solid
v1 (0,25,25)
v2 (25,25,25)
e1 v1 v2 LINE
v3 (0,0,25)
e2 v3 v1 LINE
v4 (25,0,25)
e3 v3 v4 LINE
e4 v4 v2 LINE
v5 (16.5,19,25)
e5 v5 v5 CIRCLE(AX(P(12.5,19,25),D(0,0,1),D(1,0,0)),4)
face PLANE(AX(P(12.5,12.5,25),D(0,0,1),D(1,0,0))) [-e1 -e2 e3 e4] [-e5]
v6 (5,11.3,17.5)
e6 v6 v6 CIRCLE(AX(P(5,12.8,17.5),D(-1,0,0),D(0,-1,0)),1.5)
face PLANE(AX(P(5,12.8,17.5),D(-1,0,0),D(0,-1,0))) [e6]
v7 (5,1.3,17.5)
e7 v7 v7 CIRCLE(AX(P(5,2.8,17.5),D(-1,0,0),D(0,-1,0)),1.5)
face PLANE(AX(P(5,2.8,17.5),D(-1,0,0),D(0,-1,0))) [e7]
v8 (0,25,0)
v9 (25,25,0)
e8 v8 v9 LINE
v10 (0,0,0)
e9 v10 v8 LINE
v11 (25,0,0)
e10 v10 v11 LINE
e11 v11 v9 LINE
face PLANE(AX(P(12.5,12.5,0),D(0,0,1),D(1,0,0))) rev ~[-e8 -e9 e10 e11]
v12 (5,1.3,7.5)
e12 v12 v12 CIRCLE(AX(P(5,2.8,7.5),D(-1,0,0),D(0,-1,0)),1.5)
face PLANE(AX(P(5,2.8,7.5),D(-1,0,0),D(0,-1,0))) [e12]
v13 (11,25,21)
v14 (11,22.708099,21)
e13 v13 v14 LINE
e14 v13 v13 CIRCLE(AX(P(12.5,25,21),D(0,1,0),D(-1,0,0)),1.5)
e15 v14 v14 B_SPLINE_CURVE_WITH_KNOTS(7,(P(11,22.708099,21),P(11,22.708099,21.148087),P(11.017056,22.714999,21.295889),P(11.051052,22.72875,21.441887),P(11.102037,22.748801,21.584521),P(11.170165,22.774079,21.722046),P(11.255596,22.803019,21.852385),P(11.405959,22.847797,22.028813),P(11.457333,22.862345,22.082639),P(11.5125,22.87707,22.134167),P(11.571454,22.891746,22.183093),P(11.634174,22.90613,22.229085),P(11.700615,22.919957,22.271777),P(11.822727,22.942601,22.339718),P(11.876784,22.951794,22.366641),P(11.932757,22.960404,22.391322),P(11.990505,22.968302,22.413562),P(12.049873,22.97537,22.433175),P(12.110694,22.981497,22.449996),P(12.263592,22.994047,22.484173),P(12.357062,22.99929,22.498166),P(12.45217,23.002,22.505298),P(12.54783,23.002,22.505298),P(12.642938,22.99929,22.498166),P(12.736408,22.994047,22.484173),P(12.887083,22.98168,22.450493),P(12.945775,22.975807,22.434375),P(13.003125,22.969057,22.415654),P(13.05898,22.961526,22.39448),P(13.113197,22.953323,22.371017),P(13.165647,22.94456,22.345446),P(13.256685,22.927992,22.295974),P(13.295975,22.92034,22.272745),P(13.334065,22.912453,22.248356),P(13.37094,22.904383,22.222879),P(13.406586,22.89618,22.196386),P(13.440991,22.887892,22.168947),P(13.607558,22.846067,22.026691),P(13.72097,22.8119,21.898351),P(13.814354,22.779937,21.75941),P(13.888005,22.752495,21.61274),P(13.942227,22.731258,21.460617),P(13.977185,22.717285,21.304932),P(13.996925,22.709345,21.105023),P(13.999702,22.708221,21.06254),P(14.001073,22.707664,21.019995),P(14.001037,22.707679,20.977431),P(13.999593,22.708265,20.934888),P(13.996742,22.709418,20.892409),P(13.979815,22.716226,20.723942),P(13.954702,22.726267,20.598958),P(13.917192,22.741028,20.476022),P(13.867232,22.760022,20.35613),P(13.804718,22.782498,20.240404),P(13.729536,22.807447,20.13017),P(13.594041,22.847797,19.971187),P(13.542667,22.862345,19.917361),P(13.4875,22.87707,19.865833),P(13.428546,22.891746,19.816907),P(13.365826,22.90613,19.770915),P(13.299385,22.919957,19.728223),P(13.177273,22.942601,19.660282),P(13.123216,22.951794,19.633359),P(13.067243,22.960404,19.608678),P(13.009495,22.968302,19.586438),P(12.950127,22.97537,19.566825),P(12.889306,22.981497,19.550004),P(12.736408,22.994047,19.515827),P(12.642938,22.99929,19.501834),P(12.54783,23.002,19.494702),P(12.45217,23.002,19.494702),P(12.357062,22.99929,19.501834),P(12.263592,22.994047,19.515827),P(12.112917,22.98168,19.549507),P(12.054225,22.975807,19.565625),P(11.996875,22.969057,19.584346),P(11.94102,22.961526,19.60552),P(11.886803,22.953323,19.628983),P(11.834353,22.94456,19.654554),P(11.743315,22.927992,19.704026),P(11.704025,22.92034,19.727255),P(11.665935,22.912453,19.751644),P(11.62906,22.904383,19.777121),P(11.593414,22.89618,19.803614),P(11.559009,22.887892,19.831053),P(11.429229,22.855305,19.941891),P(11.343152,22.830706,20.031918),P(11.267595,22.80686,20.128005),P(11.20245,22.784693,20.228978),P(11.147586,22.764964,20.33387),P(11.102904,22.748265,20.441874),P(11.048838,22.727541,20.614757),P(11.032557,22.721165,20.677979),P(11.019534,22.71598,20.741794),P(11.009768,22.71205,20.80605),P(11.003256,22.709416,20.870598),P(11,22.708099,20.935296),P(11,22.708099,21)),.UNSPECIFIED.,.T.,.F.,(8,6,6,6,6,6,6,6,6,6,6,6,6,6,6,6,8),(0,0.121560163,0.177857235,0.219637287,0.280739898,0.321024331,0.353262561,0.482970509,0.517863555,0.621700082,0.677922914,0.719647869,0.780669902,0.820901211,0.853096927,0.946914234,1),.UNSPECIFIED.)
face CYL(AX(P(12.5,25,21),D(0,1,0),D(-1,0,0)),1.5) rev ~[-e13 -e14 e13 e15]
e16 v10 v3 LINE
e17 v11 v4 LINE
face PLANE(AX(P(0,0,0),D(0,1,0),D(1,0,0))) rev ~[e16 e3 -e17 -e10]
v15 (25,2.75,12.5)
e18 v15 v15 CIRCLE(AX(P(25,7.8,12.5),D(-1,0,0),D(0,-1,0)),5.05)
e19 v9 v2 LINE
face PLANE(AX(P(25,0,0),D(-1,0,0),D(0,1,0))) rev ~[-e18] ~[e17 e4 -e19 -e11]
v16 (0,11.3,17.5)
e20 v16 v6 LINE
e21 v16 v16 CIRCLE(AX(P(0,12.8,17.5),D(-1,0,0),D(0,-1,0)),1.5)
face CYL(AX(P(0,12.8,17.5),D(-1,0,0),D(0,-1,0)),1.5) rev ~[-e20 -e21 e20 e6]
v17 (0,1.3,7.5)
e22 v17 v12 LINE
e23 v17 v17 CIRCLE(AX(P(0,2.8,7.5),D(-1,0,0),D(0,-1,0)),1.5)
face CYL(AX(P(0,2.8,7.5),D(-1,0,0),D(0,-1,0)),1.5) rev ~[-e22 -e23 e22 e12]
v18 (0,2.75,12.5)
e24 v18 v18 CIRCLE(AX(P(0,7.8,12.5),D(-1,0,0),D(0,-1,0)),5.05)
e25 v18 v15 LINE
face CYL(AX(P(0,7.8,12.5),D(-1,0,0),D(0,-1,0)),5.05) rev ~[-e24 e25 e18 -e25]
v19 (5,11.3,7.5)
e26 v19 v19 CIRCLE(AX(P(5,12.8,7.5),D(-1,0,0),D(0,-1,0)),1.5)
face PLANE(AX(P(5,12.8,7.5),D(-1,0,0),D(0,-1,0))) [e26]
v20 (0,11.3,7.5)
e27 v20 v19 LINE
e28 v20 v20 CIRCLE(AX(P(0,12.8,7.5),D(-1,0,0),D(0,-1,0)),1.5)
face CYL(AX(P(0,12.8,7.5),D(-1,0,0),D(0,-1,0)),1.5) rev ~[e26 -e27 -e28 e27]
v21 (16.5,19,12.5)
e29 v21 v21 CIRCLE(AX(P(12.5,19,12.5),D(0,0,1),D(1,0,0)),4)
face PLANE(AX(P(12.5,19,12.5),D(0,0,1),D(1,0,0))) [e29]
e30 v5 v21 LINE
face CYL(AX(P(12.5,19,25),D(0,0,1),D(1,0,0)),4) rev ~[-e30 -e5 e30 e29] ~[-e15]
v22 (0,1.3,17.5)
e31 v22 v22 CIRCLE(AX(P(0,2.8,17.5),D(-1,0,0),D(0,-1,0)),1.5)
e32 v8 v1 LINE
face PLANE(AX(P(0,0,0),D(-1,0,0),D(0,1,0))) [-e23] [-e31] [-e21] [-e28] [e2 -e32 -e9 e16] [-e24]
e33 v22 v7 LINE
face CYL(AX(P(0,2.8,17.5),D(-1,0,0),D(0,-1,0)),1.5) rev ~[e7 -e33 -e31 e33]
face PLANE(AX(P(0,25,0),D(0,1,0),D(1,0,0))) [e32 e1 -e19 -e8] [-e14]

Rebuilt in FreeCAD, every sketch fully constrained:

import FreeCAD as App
import Part
import Sketcher

doc = App.newDocument("Part")
body = doc.addObject("PartDesign::Body", "Body")

# Sketch on XY plane
sketch1 = doc.addObject("Sketcher::SketchObject", "Sketch")
body.addObject(sketch1)
sketch1.AttachmentSupport = (doc.XY_Plane, [""])
sketch1.MapMode = "FlatFace"
sketch1.addGeometry(Part.LineSegment(App.Vector(0, 25, 0), App.Vector(0, 0, 0)), False)
sketch1.addGeometry(Part.LineSegment(App.Vector(0, 0, 0), App.Vector(25, 0, 0)), False)
sketch1.addGeometry(Part.LineSegment(App.Vector(25, 0, 0), App.Vector(25, 25, 0)), False)
sketch1.addGeometry(Part.LineSegment(App.Vector(25, 25, 0), App.Vector(0, 25, 0)), False)
sketch1.addConstraint(Sketcher.Constraint("Coincident", 0, 2, 1, 1))
sketch1.addConstraint(Sketcher.Constraint("Coincident", 1, 2, 2, 1))
sketch1.addConstraint(Sketcher.Constraint("Coincident", 2, 2, 3, 1))
sketch1.addConstraint(Sketcher.Constraint("Coincident", 3, 2, 0, 1))
sketch1.addConstraint(Sketcher.Constraint("Vertical", 0))
sketch1.addConstraint(Sketcher.Constraint("Horizontal", 1))
sketch1.addConstraint(Sketcher.Constraint("Vertical", 2))
sketch1.addConstraint(Sketcher.Constraint("Horizontal", 3))
sketch1.addConstraint(Sketcher.Constraint("Coincident", 0, 2, -1, 1))
sketch1.addConstraint(Sketcher.Constraint("Equal", 3, 0))
sketch1.addConstraint(Sketcher.Constraint("DistanceX", 1, 1, 1, 2, 25.0))
pad1 = doc.addObject("PartDesign::Pad", "Pad")
body.addObject(pad1)
pad1.Profile = sketch1
pad1.Length = 25

# Sketch on XY plane
sketch2 = doc.addObject("Sketcher::SketchObject", "Sketch001")
body.addObject(sketch2)
sketch2.AttachmentSupport = (doc.XY_Plane, [""])
sketch2.MapMode = "FlatFace"
sketch2.AttachmentOffset = App.Placement(App.Vector(0, 0, 25), App.Rotation())
sketch2.addGeometry(Part.Circle(App.Vector(12.5, 19, 0), App.Vector(0, 0, 1), 4), False)
sketch2.addConstraint(Sketcher.Constraint("Diameter", 0, 8.0))
sketch2.addConstraint(Sketcher.Constraint("DistanceY", -1, 1, 0, 3, 19.0))
sketch2.addConstraint(Sketcher.Constraint("DistanceX", -1, 1, 0, 3, 12.5))
pocket1 = doc.addObject("PartDesign::Pocket", "Pocket")
body.addObject(pocket1)
pocket1.Profile = sketch2
pocket1.Length = 12.5

# Sketch on XZ plane
sketch3 = doc.addObject("Sketcher::SketchObject", "Sketch002")
body.addObject(sketch3)
sketch3.AttachmentSupport = (doc.XZ_Plane, [""])
sketch3.MapMode = "FlatFace"
sketch3.AttachmentOffset = App.Placement(App.Vector(0, 0, -25), App.Rotation())
sketch3.addGeometry(Part.Circle(App.Vector(12.5, 21, 0), App.Vector(0, 0, 1), 1.5), False)
sketch3.addConstraint(Sketcher.Constraint("Diameter", 0, 3.0))
sketch3.addConstraint(Sketcher.Constraint("DistanceY", -1, 1, 0, 3, 21.0))
sketch3.addConstraint(Sketcher.Constraint("DistanceX", -1, 1, 0, 3, 12.5))
pocket2 = doc.addObject("PartDesign::Pocket", "Pocket001")
body.addObject(pocket2)
pocket2.Profile = sketch3
pocket2.Length = 6
pocket2.Reversed = True

# Sketch on YZ plane
sketch4 = doc.addObject("Sketcher::SketchObject", "Sketch003")
body.addObject(sketch4)
sketch4.AttachmentSupport = (doc.YZ_Plane, [""])
sketch4.MapMode = "FlatFace"
sketch4.addGeometry(Part.Circle(App.Vector(2.8, 7.5, 0), App.Vector(0, 0, 1), 1.5), False)
sketch4.addGeometry(Part.Circle(App.Vector(2.8, 17.5, 0), App.Vector(0, 0, 1), 1.5), False)
sketch4.addGeometry(Part.Circle(App.Vector(12.8, 7.5, 0), App.Vector(0, 0, 1), 1.5), False)
sketch4.addGeometry(Part.Circle(App.Vector(12.8, 17.5, 0), App.Vector(0, 0, 1), 1.5), False)
sketch4.addConstraint(Sketcher.Constraint("Equal", 0, 1))
sketch4.addConstraint(Sketcher.Constraint("Equal", 1, 2))
sketch4.addConstraint(Sketcher.Constraint("Equal", 2, 3))
sketch4.addConstraint(Sketcher.Constraint("Horizontal", 0, 3, 2, 3))
sketch4.addConstraint(Sketcher.Constraint("Horizontal", 1, 3, 3, 3))
sketch4.addConstraint(Sketcher.Constraint("Vertical", 0, 3, 1, 3))
sketch4.addConstraint(Sketcher.Constraint("Vertical", 2, 3, 3, 3))
sketch4.addConstraint(Sketcher.Constraint("Diameter", 0, 3.0))
sketch4.addConstraint(Sketcher.Constraint("DistanceY", 0, 3, 1, 3, 10.0))
sketch4.addConstraint(Sketcher.Constraint("DistanceX", 0, 3, 2, 3, 10.0))
sketch4.addConstraint(Sketcher.Constraint("DistanceX", -1, 1, 0, 3, 2.8))
sketch4.addConstraint(Sketcher.Constraint("DistanceY", -1, 1, 0, 3, 7.5))
pocket3 = doc.addObject("PartDesign::Pocket", "Pocket002")
body.addObject(pocket3)
pocket3.Profile = sketch4
pocket3.Length = 5
pocket3.Reversed = True

# Sketch on YZ plane
sketch5 = doc.addObject("Sketcher::SketchObject", "Sketch004")
body.addObject(sketch5)
sketch5.AttachmentSupport = (doc.YZ_Plane, [""])
sketch5.MapMode = "FlatFace"
sketch5.addGeometry(Part.Circle(App.Vector(7.8, 12.5, 0), App.Vector(0, 0, 1), 5.05), False)
sketch5.addConstraint(Sketcher.Constraint("Diameter", 0, 10.1))
sketch5.addConstraint(Sketcher.Constraint("DistanceX", -1, 1, 0, 3, 7.8))
sketch5.addConstraint(Sketcher.Constraint("DistanceY", -1, 1, 0, 3, 12.5))
pocket4 = doc.addObject("PartDesign::Pocket", "Pocket003")
body.addObject(pocket4)
pocket4.Profile = sketch5
pocket4.Type = "ThroughAll"
pocket4.Reversed = True

doc.recompute()
